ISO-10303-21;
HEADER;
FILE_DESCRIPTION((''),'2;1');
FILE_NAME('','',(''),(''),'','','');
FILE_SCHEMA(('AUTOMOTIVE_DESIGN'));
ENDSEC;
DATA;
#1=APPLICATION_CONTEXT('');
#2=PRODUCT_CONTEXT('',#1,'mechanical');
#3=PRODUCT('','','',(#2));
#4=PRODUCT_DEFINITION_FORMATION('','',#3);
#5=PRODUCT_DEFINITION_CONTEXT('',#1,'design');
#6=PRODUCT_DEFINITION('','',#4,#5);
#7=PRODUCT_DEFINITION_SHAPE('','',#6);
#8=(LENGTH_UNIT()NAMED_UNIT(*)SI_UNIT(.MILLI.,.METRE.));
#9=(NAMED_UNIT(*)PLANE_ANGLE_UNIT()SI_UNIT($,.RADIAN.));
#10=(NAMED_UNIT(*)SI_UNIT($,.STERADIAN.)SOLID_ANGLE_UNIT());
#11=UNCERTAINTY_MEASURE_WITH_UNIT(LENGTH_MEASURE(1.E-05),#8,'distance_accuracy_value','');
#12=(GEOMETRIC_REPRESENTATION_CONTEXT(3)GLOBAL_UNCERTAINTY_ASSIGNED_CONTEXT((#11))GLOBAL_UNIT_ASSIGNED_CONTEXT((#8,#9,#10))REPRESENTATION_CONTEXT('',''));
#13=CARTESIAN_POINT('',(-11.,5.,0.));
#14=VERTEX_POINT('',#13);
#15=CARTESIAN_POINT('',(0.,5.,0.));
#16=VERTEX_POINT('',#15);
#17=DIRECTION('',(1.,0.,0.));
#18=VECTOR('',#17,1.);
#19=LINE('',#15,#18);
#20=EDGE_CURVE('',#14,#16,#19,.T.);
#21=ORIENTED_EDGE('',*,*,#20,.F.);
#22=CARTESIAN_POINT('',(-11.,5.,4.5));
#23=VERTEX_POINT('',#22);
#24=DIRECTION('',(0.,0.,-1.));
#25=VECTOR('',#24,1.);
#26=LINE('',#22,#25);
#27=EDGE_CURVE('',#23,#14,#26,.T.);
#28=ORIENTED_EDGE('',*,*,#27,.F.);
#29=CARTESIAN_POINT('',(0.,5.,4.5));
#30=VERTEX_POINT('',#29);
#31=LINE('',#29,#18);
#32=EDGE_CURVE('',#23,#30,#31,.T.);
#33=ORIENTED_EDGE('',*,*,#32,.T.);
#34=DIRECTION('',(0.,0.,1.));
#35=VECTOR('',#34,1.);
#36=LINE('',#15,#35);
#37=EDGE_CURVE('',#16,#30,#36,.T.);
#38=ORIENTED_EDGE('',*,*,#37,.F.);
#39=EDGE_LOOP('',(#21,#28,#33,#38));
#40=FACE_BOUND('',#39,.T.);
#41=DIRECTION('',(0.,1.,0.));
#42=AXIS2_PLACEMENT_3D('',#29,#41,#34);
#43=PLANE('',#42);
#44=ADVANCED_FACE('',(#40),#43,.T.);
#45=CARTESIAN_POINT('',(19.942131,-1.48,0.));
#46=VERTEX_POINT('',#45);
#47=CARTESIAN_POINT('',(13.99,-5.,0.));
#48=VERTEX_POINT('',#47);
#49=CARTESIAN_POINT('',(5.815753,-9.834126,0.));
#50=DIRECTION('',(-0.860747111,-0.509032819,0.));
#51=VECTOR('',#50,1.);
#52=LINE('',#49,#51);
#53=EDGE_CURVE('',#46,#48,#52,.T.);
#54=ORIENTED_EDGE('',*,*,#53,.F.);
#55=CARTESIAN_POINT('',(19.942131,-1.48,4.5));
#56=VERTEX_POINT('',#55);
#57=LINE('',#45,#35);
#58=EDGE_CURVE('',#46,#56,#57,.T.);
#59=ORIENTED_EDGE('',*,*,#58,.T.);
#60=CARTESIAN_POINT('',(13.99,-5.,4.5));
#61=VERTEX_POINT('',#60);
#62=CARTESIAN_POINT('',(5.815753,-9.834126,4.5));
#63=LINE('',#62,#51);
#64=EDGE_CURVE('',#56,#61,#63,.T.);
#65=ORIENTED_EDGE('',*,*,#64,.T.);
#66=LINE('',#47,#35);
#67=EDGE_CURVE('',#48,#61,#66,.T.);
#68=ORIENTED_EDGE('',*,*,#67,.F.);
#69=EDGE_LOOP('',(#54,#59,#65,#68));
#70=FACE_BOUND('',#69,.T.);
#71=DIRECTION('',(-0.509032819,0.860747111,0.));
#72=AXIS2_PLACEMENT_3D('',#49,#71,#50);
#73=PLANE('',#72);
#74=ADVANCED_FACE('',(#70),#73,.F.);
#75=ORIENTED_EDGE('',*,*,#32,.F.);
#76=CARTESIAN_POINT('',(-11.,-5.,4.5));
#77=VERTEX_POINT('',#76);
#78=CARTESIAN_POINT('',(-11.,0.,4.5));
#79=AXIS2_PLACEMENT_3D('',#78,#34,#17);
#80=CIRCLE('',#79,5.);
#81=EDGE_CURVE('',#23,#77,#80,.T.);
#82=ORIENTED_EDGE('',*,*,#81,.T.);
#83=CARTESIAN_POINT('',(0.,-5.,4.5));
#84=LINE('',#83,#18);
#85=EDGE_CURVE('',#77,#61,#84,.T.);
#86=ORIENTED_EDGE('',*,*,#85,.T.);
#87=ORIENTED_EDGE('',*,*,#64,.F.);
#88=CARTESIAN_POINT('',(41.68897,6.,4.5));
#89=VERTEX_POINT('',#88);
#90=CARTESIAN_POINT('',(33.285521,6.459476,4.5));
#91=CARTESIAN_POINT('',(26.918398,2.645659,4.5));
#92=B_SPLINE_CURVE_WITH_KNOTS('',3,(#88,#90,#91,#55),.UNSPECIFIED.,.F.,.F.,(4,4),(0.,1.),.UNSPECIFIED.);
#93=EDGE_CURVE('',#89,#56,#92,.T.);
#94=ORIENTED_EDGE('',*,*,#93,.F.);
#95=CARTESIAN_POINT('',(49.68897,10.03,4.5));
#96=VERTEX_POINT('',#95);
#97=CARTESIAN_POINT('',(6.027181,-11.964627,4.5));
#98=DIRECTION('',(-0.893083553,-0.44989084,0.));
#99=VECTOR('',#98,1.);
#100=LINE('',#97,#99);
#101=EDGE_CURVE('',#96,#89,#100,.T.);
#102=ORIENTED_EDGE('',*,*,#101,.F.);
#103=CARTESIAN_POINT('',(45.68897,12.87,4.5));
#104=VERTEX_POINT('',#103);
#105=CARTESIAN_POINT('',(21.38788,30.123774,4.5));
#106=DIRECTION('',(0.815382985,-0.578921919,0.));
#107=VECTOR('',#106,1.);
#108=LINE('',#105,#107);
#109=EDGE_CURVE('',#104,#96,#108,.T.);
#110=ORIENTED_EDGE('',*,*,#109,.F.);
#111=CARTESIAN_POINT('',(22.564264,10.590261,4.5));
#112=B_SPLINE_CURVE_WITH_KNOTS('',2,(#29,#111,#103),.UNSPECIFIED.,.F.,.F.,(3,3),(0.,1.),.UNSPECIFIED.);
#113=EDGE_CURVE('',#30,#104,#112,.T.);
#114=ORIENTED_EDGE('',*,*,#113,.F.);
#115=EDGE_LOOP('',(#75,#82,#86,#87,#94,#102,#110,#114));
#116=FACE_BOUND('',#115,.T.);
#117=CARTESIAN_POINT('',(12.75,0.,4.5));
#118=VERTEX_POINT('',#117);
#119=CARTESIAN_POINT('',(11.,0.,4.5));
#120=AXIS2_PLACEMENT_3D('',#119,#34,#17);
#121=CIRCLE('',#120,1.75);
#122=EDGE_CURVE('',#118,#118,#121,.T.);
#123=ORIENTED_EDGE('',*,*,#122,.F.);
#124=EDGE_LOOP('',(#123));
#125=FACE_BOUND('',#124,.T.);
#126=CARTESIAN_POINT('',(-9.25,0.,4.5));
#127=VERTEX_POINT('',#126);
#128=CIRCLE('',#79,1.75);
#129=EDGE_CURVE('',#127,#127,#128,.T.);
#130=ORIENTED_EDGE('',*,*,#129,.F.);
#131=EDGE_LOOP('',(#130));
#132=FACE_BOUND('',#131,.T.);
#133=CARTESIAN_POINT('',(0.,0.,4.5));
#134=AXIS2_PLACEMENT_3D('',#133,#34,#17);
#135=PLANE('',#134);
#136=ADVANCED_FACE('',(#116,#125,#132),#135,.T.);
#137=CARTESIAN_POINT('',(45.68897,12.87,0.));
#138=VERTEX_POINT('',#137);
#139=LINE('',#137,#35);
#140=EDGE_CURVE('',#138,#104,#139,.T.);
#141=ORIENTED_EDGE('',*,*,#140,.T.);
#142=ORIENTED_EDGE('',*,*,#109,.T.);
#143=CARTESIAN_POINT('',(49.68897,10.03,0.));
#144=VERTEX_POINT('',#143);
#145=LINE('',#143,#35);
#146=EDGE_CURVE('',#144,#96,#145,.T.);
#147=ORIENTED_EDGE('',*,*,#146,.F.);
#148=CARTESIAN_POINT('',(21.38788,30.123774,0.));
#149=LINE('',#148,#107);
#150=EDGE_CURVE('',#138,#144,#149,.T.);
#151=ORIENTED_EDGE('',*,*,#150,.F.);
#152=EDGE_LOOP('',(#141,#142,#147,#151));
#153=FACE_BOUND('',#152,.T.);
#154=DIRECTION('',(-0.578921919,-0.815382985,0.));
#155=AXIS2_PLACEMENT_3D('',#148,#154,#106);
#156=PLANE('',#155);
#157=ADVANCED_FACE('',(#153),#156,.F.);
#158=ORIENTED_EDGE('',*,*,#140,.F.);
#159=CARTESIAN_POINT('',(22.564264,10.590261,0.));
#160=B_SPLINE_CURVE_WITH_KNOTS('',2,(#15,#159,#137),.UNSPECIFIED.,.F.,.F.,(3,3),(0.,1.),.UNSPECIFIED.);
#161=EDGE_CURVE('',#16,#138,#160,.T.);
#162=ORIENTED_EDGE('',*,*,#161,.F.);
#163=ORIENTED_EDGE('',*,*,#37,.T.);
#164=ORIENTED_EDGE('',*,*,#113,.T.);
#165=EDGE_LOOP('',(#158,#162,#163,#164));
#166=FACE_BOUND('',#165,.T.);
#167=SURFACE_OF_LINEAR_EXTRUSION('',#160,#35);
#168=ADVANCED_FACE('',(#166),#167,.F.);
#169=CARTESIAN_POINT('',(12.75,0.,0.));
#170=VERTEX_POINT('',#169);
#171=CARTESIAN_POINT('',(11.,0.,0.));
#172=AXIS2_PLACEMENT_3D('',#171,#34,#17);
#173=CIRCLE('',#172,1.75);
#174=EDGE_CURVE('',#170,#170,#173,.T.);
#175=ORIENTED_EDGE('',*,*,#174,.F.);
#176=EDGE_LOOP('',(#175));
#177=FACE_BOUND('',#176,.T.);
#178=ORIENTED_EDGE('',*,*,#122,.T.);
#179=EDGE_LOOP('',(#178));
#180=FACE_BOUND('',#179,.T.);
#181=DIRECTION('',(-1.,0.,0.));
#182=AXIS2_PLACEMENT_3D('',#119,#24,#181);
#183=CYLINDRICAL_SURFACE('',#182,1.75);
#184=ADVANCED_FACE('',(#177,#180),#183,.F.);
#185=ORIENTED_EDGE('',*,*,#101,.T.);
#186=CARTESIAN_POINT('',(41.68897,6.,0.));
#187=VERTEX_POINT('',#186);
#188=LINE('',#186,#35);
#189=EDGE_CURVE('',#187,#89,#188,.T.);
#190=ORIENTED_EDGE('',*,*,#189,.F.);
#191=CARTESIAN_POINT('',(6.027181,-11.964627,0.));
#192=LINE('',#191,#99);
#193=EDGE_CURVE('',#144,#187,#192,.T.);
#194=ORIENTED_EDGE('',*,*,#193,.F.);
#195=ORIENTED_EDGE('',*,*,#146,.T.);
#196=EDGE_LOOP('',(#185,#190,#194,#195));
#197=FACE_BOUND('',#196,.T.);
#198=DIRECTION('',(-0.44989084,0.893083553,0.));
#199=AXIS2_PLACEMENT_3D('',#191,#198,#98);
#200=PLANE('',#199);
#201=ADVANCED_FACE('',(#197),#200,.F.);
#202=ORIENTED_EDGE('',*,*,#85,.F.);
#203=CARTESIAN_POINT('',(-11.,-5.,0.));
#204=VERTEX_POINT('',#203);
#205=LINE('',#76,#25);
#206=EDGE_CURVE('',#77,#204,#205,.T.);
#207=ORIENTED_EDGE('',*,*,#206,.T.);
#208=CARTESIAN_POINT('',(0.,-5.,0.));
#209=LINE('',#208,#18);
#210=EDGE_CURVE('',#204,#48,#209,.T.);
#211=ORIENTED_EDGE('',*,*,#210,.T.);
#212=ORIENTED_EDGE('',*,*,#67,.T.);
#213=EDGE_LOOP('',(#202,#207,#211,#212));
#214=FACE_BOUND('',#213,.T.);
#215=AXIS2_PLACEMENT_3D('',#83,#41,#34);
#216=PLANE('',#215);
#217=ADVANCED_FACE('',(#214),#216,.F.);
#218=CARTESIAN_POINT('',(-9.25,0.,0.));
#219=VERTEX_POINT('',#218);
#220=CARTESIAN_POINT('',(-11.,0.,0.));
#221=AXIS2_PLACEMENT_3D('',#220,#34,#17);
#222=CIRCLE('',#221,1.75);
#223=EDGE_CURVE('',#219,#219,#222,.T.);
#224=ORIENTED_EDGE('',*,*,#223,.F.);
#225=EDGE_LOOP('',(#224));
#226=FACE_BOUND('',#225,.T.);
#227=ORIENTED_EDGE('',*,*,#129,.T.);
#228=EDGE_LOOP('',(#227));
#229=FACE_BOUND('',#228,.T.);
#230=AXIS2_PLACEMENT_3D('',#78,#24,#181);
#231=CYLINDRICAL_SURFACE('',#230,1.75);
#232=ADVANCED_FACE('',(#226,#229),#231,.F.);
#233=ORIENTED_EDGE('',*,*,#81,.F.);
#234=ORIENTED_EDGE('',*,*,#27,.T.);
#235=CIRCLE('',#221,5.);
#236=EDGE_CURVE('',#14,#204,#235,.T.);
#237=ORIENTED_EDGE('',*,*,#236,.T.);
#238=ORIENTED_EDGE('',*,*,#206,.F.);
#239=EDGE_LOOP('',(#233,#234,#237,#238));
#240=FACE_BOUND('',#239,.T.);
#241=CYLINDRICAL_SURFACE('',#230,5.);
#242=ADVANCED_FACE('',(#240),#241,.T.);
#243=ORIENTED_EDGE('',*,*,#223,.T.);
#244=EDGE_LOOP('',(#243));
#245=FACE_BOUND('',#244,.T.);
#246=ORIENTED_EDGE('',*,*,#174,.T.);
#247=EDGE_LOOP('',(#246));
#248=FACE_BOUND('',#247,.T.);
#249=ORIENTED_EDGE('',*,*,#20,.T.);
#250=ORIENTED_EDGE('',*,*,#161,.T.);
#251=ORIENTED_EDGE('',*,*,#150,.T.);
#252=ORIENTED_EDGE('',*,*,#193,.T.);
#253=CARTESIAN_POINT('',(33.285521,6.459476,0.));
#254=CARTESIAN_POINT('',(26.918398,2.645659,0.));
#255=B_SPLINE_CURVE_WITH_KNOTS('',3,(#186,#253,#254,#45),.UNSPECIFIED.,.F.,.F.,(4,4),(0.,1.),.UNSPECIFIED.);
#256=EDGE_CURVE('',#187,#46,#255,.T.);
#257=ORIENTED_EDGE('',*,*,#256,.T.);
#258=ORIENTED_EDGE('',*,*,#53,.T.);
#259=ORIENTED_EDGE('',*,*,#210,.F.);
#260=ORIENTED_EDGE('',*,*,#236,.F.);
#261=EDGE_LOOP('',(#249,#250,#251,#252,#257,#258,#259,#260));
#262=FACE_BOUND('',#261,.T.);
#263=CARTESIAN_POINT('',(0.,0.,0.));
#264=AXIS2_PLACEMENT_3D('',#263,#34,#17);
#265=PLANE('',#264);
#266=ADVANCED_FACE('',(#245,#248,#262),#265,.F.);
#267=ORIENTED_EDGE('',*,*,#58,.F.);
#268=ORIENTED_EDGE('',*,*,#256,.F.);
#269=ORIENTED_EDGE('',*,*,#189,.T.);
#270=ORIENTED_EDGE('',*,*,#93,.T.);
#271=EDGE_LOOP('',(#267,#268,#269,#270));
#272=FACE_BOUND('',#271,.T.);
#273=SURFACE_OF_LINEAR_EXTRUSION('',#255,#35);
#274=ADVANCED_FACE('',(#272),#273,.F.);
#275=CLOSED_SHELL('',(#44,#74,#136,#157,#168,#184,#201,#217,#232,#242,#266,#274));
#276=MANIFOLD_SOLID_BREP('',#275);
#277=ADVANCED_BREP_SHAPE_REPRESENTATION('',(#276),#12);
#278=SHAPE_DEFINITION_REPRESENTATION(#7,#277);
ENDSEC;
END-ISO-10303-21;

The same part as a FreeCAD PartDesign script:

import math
import FreeCAD as App
import Part
import Sketcher

V = App.Vector
Q = App.Units.Quantity

doc = App.newDocument("Part")
params = doc.addObject("Spreadsheet::Sheet", "Params")
for row, (alias, value) in enumerate([
    ("sketch1_radius", "5 mm"),
    ("sketch1_diameter", "3.5 mm"),
    ("sketch1_width", "22 mm"),
    ("pad1_length", "4.5 mm"),
    ("sketch2_width", "11 mm"),
    ("sketch2_width2", "2.99 mm"),
    ("pad2_length", "4.5 mm"),
], start=1):
    params.set(f"A{row}", alias)
    params.set(f"B{row}", "=" + value)
    params.setAlias(f"B{row}", alias)

body = doc.addObject("PartDesign::Body", "Body")

sketch1 = body.newObject("Sketcher::SketchObject", "Sketch")
sketch1.AttachmentSupport = (doc.getObject("XY_Plane"), [""])
sketch1.MapMode = "FlatFace"
sketch1.addGeometry(Part.ArcOfCircle(Part.Circle(V(-11, 0, 0), V(0, 0, 1), 5), math.radians(90), math.radians(270)), False)
sketch1.addGeometry(Part.LineSegment(V(-11, -5, 0), V(11, -5, 0)), False)
sketch1.addGeometry(Part.ArcOfCircle(Part.Circle(V(11, 0, 0), V(0, 0, 1), 5), math.radians(-90), math.radians(90)), False)
sketch1.addGeometry(Part.LineSegment(V(11, 5, 0), V(-11, 5, 0)), False)
sketch1.addGeometry(Part.Circle(V(-11, 0, 0), V(0, 0, 1), 1.8), False)
sketch1.addGeometry(Part.Circle(V(11, 0, 0), V(0, 0, 1), 1.8), False)
sketch1.addConstraint(Sketcher.Constraint("Tangent", 0, 2, 1, 1))
sketch1.addConstraint(Sketcher.Constraint("Tangent", 1, 2, 2, 1))
sketch1.addConstraint(Sketcher.Constraint("Tangent", 2, 2, 3, 1))
sketch1.addConstraint(Sketcher.Constraint("Tangent", 3, 2, 0, 1))
sketch1.addConstraint(Sketcher.Constraint("Horizontal", 1))
sketch1.addConstraint(Sketcher.Constraint("Horizontal", 3))
sketch1.addConstraint(Sketcher.Constraint("Coincident", 4, 3, 0, 3))
sketch1.addConstraint(Sketcher.Constraint("Coincident", 5, 3, 2, 3))
sketch1.addConstraint(Sketcher.Constraint("Equal", 4, 5))
sketch1.addConstraint(Sketcher.Constraint("Symmetric", 0, 3, 2, 3, -1, 1))
sketch1.addConstraint(Sketcher.Constraint("Radius", 0, Q("5 mm")))
sketch1.addConstraint(Sketcher.Constraint("Diameter", 4, Q("3.5 mm")))
sketch1.addConstraint(Sketcher.Constraint("DistanceX", 1, 1, 1, 2, Q("22 mm")))
sketch1.setExpression("Constraints[10]", "Params.sketch1_radius")
sketch1.setExpression("Constraints[11]", "Params.sketch1_diameter")
sketch1.setExpression("Constraints[12]", "Params.sketch1_width")
pad1 = body.newObject("PartDesign::Pad", "Pad")
pad1.Profile = sketch1
pad1.setExpression("Length", "Params.pad1_length")

sketch2 = body.newObject("Sketcher::SketchObject", "Sketch001")
sketch2.AttachmentSupport = (doc.getObject("XY_Plane"), [""])
sketch2.MapMode = "FlatFace"
sketch2.addGeometry(Part.LineSegment(V(49.68897, 10.03, 0), V(45.68897, 12.87, 0)), False)
sketch2.addGeometry(Part.BSplineCurve([V(0, 5, 0), V(22.564264, 10.590261, 0), V(45.68897, 12.87, 0)], [3, 3], [0, 1], False, 2, [1, 1, 1], False), False)
sketch2.addGeometry(Part.LineSegment(V(0, 5, 0), V(11, 5, 0)), False)
sketch2.addGeometry(Part.ArcOfCircle(Part.Circle(V(11, 0, 0), V(0, 0, 1), 5), math.radians(-90), math.radians(90)), False)
sketch2.addGeometry(Part.LineSegment(V(11, -5, 0), V(13.99, -5, 0)), False)
sketch2.addGeometry(Part.LineSegment(V(13.99, -5, 0), V(19.942131, -1.48, 0)), False)
sketch2.addGeometry(Part.BSplineCurve([V(41.68897, 6, 0), V(33.285521, 6.459476, 0), V(26.918398, 2.645659, 0), V(19.942131, -1.48, 0)], [4, 4], [0, 1], False, 3, [1, 1, 1, 1], False), False)
sketch2.addGeometry(Part.LineSegment(V(41.68897, 6, 0), V(49.68897, 10.03, 0)), False)
sketch2.addConstraint(Sketcher.Constraint("Block", 1))
sketch2.addConstraint(Sketcher.Constraint("Block", 6))
sketch2.addConstraint(Sketcher.Constraint("Coincident", 0, 2, 1, 2))
sketch2.addConstraint(Sketcher.Constraint("Coincident", 1, 1, 2, 1))
sketch2.addConstraint(Sketcher.Constraint("Tangent", 2, 2, 3, 2))
sketch2.addConstraint(Sketcher.Constraint("Tangent", 3, 1, 4, 1))
sketch2.addConstraint(Sketcher.Constraint("Coincident", 4, 2, 5, 1))
sketch2.addConstraint(Sketcher.Constraint("Coincident", 5, 2, 6, 2))
sketch2.addConstraint(Sketcher.Constraint("Coincident", 6, 1, 7, 1))
sketch2.addConstraint(Sketcher.Constraint("Coincident", 7, 2, 0, 1))
sketch2.addConstraint(Sketcher.Constraint("Horizontal", 2))
sketch2.addConstraint(Sketcher.Constraint("Horizontal", 4))
sketch2.addConstraint(Sketcher.Constraint("PointOnObject", 3, 3, -1))
sketch2.addConstraint(Sketcher.Constraint("DistanceX", 2, 1, 2, 2, Q("11 mm")))
sketch2.addConstraint(Sketcher.Constraint("DistanceX", 0, 2, 7, 2, Q("4 mm")))
sketch2.addConstraint(Sketcher.Constraint("DistanceX", 4, 1, 4, 2, Q("2.99 mm")))
sketch2.addConstraint(Sketcher.Constraint("DistanceY", -1, 1, 7, 2, Q("10.03 mm")))
sketch2.setExpression("Constraints[13]", "Params.sketch2_width")
sketch2.setExpression("Constraints[15]", "Params.sketch2_width2")
pad2 = body.newObject("PartDesign::Pad", "Pad001")
pad2.Profile = sketch2
pad2.setExpression("Length", "Params.pad2_length")

doc.recompute()
